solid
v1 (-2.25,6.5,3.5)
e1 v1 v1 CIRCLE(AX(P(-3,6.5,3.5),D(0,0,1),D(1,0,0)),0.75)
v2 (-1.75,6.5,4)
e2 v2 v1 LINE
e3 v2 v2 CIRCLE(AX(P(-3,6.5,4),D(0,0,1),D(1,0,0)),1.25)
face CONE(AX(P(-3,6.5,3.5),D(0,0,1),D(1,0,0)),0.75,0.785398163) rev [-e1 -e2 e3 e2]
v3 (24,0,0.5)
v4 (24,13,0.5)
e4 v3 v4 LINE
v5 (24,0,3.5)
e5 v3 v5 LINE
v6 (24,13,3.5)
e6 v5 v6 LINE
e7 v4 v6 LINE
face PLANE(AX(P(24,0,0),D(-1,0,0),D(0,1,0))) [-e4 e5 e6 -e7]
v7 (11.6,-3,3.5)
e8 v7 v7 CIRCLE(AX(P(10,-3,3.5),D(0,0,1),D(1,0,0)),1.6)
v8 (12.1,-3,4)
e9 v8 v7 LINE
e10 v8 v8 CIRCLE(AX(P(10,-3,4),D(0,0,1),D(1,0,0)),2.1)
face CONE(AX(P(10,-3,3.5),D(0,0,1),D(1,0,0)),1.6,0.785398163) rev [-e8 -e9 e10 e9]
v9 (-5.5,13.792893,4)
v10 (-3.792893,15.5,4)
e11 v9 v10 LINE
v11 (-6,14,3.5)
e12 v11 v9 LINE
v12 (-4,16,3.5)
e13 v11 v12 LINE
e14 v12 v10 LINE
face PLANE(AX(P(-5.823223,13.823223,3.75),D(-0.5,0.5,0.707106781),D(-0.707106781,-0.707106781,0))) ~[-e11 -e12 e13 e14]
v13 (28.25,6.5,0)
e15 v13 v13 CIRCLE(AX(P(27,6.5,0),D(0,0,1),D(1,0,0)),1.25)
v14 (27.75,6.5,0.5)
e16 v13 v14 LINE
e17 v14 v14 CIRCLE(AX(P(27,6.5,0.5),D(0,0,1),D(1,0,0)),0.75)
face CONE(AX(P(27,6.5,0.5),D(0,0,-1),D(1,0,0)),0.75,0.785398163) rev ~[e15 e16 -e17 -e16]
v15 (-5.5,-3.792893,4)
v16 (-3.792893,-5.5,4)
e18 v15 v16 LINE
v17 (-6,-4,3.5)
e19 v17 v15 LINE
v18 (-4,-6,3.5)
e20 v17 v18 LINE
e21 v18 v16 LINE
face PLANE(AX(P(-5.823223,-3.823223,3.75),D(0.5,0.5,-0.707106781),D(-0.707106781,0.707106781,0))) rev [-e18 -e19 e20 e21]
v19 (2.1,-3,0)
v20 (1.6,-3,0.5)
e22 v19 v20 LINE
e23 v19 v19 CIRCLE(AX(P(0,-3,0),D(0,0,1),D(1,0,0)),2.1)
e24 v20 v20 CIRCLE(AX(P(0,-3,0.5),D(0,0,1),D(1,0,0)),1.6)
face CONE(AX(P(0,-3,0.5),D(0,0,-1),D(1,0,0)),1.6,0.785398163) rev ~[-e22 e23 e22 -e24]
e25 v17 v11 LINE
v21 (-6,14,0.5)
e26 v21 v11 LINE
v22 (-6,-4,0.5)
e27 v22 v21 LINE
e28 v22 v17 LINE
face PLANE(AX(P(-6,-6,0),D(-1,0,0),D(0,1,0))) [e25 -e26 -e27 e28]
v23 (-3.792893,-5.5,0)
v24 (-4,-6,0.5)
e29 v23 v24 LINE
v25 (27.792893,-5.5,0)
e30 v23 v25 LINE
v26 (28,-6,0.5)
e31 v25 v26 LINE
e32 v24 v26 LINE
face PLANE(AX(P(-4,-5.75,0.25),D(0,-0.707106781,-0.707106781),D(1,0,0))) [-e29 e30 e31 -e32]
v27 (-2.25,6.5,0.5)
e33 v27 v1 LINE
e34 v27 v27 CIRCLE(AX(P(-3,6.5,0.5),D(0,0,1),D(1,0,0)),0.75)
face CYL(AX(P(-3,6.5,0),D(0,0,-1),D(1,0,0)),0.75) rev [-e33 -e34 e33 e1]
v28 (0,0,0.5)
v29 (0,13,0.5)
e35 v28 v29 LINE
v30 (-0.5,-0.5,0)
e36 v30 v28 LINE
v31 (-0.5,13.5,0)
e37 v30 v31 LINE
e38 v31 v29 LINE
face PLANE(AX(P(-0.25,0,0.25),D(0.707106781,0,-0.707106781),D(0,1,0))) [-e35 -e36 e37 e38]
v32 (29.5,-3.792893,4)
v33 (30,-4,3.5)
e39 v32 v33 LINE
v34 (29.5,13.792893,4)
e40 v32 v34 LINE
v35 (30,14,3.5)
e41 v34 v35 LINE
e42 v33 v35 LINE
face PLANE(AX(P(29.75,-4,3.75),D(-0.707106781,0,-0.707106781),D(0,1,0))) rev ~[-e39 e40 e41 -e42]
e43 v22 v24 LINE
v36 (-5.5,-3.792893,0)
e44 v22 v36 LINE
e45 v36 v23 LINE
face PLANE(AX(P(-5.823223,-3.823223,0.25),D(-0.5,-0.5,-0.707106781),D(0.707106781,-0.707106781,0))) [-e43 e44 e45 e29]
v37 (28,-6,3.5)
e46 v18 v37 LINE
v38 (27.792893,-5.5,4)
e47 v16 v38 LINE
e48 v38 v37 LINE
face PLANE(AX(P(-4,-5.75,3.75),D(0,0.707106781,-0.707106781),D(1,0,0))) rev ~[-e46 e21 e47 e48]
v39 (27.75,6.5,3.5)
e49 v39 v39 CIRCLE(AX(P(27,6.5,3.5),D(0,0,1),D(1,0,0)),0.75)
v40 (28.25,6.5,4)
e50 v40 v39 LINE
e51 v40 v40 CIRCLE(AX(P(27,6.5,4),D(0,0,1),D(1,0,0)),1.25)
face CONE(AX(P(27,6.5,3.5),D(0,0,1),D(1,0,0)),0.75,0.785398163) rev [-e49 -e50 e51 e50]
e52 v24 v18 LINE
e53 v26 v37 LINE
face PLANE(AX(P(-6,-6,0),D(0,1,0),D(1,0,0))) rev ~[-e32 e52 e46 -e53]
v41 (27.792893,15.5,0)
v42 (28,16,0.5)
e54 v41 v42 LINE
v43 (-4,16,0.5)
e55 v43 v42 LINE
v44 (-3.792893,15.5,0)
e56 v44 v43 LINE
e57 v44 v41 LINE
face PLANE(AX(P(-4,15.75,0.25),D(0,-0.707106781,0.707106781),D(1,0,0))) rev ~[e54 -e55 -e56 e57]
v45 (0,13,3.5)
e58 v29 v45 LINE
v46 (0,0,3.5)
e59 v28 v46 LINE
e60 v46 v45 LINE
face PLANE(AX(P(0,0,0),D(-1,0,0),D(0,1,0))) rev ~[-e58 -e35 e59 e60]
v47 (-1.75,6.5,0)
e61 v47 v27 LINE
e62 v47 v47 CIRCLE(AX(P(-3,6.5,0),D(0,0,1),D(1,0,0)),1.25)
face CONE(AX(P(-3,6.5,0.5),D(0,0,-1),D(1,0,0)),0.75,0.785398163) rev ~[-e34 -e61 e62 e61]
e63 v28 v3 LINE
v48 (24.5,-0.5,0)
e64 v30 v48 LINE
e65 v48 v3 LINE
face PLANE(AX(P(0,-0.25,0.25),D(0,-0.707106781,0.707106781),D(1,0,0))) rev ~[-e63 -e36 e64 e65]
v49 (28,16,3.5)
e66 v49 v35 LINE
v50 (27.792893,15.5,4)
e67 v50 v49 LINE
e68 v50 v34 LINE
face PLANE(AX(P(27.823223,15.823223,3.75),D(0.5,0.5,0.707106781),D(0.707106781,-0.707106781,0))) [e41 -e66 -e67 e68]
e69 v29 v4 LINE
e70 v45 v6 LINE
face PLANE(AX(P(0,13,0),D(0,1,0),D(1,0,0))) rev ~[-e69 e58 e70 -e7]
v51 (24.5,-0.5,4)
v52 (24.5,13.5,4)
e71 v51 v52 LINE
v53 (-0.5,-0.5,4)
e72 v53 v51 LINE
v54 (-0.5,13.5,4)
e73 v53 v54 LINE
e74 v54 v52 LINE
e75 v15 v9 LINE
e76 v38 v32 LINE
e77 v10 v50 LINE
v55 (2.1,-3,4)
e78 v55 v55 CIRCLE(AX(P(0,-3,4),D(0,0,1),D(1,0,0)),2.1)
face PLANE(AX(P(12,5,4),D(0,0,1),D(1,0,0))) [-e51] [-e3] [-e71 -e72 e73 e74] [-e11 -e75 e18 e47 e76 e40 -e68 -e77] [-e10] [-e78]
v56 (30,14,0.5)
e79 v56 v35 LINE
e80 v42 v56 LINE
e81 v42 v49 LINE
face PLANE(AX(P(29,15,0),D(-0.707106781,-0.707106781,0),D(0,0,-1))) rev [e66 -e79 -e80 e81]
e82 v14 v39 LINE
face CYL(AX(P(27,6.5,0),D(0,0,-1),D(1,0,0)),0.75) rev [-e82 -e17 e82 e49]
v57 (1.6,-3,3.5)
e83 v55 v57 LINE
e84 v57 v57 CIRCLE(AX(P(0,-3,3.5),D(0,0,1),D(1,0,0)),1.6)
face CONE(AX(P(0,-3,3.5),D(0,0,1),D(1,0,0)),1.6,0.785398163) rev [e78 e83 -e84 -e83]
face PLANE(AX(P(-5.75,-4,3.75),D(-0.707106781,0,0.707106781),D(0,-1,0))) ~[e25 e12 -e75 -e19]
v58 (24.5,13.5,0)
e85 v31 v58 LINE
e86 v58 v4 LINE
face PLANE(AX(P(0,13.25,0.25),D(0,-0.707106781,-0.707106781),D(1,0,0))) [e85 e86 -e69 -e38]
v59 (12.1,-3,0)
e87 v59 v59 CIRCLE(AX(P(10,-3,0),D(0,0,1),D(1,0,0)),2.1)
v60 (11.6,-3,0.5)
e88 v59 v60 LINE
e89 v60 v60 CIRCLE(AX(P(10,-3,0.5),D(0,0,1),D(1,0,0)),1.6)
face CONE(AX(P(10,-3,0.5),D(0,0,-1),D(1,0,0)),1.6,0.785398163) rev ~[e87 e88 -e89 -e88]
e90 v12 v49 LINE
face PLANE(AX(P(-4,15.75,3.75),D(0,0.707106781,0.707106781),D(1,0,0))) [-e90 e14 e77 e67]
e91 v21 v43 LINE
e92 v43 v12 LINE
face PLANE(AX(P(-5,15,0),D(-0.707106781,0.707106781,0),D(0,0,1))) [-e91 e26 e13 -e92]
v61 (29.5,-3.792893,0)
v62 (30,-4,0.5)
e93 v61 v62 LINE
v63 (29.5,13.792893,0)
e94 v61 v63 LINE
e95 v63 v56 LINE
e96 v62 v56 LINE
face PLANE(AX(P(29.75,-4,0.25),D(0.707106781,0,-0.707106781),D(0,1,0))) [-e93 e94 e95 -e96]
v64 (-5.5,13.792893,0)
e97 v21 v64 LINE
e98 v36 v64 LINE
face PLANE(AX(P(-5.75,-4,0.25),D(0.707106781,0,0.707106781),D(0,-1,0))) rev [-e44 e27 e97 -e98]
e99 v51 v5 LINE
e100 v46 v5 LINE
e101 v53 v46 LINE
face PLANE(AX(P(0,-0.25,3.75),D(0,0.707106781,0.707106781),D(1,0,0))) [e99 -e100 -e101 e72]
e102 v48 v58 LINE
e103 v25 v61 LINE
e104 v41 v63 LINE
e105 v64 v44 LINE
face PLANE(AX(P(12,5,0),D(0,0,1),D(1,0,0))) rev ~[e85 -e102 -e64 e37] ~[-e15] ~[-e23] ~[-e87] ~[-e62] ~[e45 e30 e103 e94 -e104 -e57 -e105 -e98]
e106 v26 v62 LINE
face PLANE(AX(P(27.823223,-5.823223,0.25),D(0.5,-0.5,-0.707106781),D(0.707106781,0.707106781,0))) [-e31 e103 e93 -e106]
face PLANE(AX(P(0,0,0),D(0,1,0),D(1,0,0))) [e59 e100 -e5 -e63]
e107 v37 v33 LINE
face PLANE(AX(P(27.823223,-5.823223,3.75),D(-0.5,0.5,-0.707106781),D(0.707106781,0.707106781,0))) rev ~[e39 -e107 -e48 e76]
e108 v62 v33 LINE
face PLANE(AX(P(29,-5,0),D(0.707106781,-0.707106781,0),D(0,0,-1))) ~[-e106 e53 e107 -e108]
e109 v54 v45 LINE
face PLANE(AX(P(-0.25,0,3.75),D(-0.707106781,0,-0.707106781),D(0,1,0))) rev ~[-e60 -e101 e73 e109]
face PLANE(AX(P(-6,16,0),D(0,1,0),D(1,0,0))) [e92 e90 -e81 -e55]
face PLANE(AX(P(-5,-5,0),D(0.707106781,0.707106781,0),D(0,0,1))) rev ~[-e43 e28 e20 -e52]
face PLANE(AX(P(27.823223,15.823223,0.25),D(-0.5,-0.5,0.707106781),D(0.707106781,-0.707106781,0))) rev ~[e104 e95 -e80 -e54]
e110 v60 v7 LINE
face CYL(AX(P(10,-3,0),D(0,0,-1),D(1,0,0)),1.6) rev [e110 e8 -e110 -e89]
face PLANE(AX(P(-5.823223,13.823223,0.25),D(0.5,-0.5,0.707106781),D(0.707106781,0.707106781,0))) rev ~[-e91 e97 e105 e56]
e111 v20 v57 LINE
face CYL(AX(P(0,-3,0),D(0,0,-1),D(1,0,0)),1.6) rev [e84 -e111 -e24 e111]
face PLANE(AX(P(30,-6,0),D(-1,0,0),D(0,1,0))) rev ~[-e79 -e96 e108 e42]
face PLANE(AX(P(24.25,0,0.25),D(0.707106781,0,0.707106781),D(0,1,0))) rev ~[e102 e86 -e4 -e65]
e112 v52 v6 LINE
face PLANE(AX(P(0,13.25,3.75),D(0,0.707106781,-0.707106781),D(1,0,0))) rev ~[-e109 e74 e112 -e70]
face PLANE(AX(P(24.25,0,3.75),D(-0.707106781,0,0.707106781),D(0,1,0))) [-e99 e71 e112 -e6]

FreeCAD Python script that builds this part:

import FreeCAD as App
import Part
import Sketcher

V = App.Vector


def edges_at(feature, points):
    """Names of the edges that pass closest to the given points."""
    edges = feature.Shape.Edges
    near = lambda p: min(range(len(edges)), key=lambda i: edges[i].distToShape(Part.Vertex(*p))[0])
    return sorted({f"Edge{near(p) + 1}" for p in points})


def add_polygon(sketch, points):
    """Adds a closed chain of lines whose ends are joined by coincident constraints."""
    first, n = sketch.GeometryCount, len(points)
    for a, b in zip(points, points[1:] + points[:1]):
        sketch.addGeometry(Part.LineSegment(App.Vector(*a, 0), App.Vector(*b, 0)), False)
    for i in range(n):
        sketch.addConstraint(Sketcher.Constraint("Coincident", first + i, 2, first + (i + 1) % n, 1))

doc = App.newDocument("Part")
body = doc.addObject("PartDesign::Body", "Body")

# Sketch on XY plane
sketch1 = body.newObject("Sketcher::SketchObject", "Sketch")
sketch1.AttachmentSupport = (doc.getObject("XY_Plane"), [""])
sketch1.MapMode = "FlatFace"
add_polygon(sketch1, [(-6, 16), (-6, -6), (30, -6), (30, 16)])  # lines 0-3
sketch1.addGeometry(Part.Circle(V(0, -3, 0), V(0, 0, 1), 1.6), False)  # 4
sketch1.addGeometry(Part.Circle(V(10, -3, 0), V(0, 0, 1), 1.6), False)  # 5
sketch1.addGeometry(Part.Circle(V(-3, 6.5, 0), V(0, 0, 1), 0.75), False)  # 6
add_polygon(sketch1, [(24, 0), (0, 0), (0, 13), (24, 13)])  # lines 7-10
sketch1.addGeometry(Part.Circle(V(27, 6.5, 0), V(0, 0, 1), 0.75), False)  # 11
sketch1.addConstraint([
    Sketcher.Constraint("Vertical", 0),
    Sketcher.Constraint("Horizontal", 1),
    Sketcher.Constraint("Vertical", 2),
    Sketcher.Constraint("Horizontal", 3),
    Sketcher.Constraint("Horizontal", 7),
    Sketcher.Constraint("Vertical", 8),
    Sketcher.Constraint("Horizontal", 9),
    Sketcher.Constraint("Vertical", 10),
    Sketcher.Constraint("Coincident", 7, 2, -1, 1),
    Sketcher.Constraint("Equal", 4, 5),
    Sketcher.Constraint("Equal", 6, 11),
    Sketcher.Constraint("PointOnObject", 4, 3, -2),
    Sketcher.Constraint("Horizontal", 4, 3, 5, 3),
    Sketcher.Constraint("Horizontal", 6, 3, 11, 3),
    Sketcher.Constraint("Diameter", 4, 3.2),
    Sketcher.Constraint("Diameter", 6, 1.5),
    Sketcher.Constraint("DistanceX", 1, 1, 1, 2, 36.0),
    Sketcher.Constraint("DistanceX", 7, 2, 7, 1, 24.0),
    Sketcher.Constraint("DistanceY", 0, 2, 0, 1, 22.0),
    Sketcher.Constraint("DistanceY", 8, 1, 8, 2, 13.0),
    Sketcher.Constraint("DistanceY", 4, 3, -1, 1, 3.0),
    Sketcher.Constraint("DistanceX", -1, 1, 5, 3, 10.0),
    Sketcher.Constraint("DistanceX", 6, 3, -1, 1, 3.0),
    Sketcher.Constraint("DistanceX", -1, 1, 11, 3, 27.0),
    Sketcher.Constraint("DistanceX", 0, 2, -1, 1, 6.0),
    Sketcher.Constraint("DistanceY", 0, 2, -1, 1, 6.0),
    Sketcher.Constraint("DistanceY", -1, 1, 6, 3, 6.5),
])
pad1 = body.newObject("PartDesign::Pad", "Pad")
pad1.Profile = sketch1
pad1.Length = 4
doc.recompute()

chamfer = body.newObject("PartDesign::Chamfer", "Chamfer")
chamfer.Base = (pad1, edges_at(pad1, [
    (-6, -6, 2),
    (30, -6, 2),
    (30, 16, 2),
    (-6, 16, 2),
]))
chamfer.Size = 2
doc.recompute()

chamfer2 = body.newObject("PartDesign::Chamfer", "Chamfer001")
chamfer2.Base = (chamfer, edges_at(chamfer, [
    (-6, 5, 0),
    (-5, 15, 0),
    (-5, -5, 0),
    (12, 16, 0),
    (12, -6, 0),
    (29, 15, 0),
    (29, -5, 0),
    (30, 5, 0),
    (-1.6, -3, 0),
    (8.4, -3, 0),
    (-3.75, 6.5, 0),
    (12, 0, 0),
    (0, 6.5, 0),
    (12, 13, 0),
    (24, 6.5, 0),
    (26.25, 6.5, 0),
    (-6, 5, 4),
    (-5, 15, 4),
    (-5, -5, 4),
    (12, 16, 4),
    (12, -6, 4),
    (29, 15, 4),
    (29, -5, 4),
    (30, 5, 4),
    (-1.6, -3, 4),
    (8.4, -3, 4),
    (-3.75, 6.5, 4),
    (12, 0, 4),
    (0, 6.5, 4),
    (12, 13, 4),
    (24, 6.5, 4),
    (26.25, 6.5, 4),
]))
chamfer2.Size = 0.5

doc.recompute()
